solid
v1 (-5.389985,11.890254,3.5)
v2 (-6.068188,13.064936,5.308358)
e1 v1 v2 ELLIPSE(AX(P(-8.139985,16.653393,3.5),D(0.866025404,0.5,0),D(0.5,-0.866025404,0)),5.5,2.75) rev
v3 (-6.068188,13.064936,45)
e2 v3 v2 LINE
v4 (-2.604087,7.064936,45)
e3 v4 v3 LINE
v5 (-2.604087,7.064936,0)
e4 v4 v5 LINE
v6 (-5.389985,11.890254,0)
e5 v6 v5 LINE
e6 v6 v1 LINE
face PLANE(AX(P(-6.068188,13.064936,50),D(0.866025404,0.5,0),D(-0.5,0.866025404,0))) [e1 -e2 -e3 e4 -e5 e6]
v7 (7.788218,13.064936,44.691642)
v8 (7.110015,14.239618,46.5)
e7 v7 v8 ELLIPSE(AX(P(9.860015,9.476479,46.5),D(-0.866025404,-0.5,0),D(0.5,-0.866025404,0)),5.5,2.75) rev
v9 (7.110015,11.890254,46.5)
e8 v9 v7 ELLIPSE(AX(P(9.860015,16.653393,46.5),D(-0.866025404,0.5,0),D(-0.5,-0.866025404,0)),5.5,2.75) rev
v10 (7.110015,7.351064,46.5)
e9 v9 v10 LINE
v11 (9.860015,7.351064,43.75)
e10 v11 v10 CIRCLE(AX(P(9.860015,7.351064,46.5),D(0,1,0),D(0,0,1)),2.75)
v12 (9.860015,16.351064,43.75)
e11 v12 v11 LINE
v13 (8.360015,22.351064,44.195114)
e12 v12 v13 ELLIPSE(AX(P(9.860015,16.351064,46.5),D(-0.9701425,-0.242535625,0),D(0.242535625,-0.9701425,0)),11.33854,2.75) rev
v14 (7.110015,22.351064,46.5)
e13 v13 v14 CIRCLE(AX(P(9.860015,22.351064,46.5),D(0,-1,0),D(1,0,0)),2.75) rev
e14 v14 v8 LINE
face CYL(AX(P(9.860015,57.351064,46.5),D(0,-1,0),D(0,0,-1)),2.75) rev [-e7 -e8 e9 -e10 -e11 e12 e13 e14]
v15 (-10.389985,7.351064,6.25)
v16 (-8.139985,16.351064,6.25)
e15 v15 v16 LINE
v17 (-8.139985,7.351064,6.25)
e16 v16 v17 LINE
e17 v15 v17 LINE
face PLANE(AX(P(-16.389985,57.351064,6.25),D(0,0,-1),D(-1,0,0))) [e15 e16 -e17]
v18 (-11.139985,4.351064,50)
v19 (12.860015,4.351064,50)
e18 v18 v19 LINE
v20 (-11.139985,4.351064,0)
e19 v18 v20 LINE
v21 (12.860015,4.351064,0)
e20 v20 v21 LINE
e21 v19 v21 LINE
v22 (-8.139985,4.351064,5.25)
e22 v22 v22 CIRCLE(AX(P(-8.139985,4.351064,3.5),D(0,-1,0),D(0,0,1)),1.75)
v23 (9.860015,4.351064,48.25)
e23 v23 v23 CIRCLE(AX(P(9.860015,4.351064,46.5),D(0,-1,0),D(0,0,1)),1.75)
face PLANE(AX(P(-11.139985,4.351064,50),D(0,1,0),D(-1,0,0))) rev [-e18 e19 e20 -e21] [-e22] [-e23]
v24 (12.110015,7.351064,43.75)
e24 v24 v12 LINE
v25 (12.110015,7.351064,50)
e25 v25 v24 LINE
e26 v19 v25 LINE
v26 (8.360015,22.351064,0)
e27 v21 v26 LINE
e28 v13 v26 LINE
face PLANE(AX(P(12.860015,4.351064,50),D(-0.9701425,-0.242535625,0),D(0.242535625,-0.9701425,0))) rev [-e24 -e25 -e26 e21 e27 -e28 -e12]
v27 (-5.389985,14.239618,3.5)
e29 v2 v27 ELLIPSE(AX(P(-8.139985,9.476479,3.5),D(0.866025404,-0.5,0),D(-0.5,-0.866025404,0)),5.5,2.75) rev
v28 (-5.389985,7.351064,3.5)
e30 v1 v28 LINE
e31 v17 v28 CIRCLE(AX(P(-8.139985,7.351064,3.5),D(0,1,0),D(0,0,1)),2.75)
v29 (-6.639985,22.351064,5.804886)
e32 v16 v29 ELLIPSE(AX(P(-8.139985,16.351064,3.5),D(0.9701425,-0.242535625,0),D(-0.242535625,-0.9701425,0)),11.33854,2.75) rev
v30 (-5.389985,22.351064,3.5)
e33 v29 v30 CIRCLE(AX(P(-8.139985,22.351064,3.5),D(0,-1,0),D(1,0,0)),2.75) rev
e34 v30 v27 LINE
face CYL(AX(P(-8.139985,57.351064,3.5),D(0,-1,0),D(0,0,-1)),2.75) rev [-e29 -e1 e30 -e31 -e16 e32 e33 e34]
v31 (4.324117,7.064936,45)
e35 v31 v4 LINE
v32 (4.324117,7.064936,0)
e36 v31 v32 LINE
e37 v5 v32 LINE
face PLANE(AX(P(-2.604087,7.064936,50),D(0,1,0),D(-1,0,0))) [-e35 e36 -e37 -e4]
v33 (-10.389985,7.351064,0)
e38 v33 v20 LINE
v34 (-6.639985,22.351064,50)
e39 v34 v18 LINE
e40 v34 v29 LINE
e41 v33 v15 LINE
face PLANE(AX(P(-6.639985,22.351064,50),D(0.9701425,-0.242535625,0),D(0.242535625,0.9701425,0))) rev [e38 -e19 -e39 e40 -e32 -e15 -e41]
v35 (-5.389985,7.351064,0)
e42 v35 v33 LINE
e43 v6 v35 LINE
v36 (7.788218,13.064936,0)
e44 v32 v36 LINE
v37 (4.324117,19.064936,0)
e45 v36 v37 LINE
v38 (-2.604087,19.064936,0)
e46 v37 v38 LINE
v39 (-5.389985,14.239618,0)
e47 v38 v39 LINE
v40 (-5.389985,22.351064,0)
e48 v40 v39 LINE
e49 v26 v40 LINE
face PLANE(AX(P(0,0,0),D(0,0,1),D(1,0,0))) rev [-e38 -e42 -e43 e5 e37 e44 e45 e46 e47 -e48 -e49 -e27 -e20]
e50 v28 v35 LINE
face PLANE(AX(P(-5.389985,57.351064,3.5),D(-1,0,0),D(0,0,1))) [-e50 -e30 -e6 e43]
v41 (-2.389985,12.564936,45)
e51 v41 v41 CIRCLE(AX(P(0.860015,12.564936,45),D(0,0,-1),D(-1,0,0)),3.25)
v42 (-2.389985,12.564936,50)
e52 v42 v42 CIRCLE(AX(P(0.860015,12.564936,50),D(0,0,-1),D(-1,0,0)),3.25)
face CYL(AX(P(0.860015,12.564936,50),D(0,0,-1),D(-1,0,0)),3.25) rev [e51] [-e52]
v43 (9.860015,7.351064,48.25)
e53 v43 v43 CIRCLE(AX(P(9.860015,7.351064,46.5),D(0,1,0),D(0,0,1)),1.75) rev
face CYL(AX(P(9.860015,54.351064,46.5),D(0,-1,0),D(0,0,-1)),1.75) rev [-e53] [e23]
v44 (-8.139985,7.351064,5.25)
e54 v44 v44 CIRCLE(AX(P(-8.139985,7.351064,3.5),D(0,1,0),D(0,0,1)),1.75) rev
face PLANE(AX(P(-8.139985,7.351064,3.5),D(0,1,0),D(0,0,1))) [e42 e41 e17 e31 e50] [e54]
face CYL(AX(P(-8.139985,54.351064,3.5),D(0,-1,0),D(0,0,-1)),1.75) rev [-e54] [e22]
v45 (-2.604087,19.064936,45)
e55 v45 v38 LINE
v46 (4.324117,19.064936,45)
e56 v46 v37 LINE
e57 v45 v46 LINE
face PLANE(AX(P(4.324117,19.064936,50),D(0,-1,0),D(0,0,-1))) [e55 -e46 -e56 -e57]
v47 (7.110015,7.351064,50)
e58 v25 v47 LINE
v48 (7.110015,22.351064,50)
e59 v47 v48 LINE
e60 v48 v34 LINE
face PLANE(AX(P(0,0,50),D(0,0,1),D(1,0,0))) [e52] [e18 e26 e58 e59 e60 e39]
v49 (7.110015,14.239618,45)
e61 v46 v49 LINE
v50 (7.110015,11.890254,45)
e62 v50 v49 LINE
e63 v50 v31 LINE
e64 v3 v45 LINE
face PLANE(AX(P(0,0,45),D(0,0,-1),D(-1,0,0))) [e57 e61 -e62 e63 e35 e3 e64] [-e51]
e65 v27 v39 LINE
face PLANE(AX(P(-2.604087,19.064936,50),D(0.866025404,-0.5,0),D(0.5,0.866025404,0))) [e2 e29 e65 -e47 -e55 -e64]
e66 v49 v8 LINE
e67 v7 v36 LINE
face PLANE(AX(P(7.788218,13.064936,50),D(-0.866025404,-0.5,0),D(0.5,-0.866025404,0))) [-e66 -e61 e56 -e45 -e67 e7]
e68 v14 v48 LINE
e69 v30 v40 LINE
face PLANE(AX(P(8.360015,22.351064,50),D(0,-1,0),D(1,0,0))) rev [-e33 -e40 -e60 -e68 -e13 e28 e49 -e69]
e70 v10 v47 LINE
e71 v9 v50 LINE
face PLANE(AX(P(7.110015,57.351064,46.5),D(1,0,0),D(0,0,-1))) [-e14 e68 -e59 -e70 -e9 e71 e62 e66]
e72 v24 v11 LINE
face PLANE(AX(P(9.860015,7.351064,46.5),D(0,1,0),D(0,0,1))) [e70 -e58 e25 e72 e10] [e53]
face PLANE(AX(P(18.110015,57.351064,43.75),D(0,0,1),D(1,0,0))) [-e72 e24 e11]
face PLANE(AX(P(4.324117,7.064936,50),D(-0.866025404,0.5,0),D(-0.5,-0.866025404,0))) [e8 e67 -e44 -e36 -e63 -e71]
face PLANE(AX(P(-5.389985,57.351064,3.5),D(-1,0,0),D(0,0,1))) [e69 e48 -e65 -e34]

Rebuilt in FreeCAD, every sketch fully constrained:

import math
import FreeCAD as App
import Part
import Sketcher
from FreeCAD import Vector
Q = App.Units.Quantity


def add_polygon(sketch, points):
    """Adds a closed chain of lines whose ends are joined by coincident constraints."""
    first, n = sketch.GeometryCount, len(points)
    for a, b in zip(points, points[1:] + points[:1]):
        sketch.addGeometry(Part.LineSegment(App.Vector(*a, 0), App.Vector(*b, 0)), False)
    for i in range(n):
        sketch.addConstraint(Sketcher.Constraint("Coincident", first + i, 2, first + (i + 1) % n, 1))

doc = App.newDocument("Part")
body = doc.addObject("PartDesign::Body", "Body")

# Sketch on XY plane
sketch1 = body.newObject("Sketcher::SketchObject", "Sketch")
sketch1.AttachmentSupport = (doc.getObject("XY_Plane"), [""])
sketch1.MapMode = "FlatFace"
add_polygon(sketch1, [(-11, 4), (13, 4), (8, 22), (-7, 22)])  # lines 0-3
add_polygon(sketch1, [(-3, 7), (-6, 13), (-3, 19), (4, 19), (8, 13), (4, 7)])  # lines 4-9
sketch1.addConstraint([
    Sketcher.Constraint("Horizontal", 0),
    Sketcher.Constraint("Horizontal", 2),
    Sketcher.Constraint("Horizontal", 6),
    Sketcher.Constraint("Horizontal", 9),
    Sketcher.Constraint("Parallel", 4, 7),
    Sketcher.Constraint("Parallel", 5, 8),
    Sketcher.Constraint("Horizontal", 4, 2, 7, 2),
    Sketcher.Constraint("Vertical", 6, 2, 8, 2),
    Sketcher.Constraint("Vertical", 5, 2, 9, 2),
    Sketcher.Constraint("Equal", 1, 3),
    Sketcher.Constraint("DistanceX", 0, 1, 0, 2, Q("24 mm")),
    Sketcher.Constraint("DistanceX", 2, 2, 2, 1, Q("15 mm")),
    Sketcher.Constraint("Angle", 4, Q("120 deg")),
    Sketcher.Constraint("DistanceY", 0, 2, 1, 2, Q("18 mm")),
    Sketcher.Constraint("DistanceY", 4, 2, 5, 2, Q("6 mm")),
    Sketcher.Constraint("DistanceX", 2, 2, 5, 2, Q("4.035898 mm")),
    Sketcher.Constraint("DistanceX", 6, 2, 1, 2, Q("4.035898 mm")),
    Sketcher.Constraint("DistanceX", 4, 2, -1, 1, Q("6.068188 mm")),
    Sketcher.Constraint("DistanceY", -1, 1, 0, 2, Q("4.351064 mm")),
    Sketcher.Constraint("DistanceY", -1, 1, 4, 2, Q("13.064936 mm")),
])
pad1 = body.newObject("PartDesign::Pad", "Pad")
pad1.Profile = sketch1
pad1.Length = 50

# Sketch on XZ plane
sketch2 = body.newObject("Sketcher::SketchObject", "Sketch001")
sketch2.AttachmentSupport = (doc.getObject("XZ_Plane"), [""])
sketch2.MapMode = "FlatFace"
sketch2.AttachmentOffset = App.Placement(Vector(0, 0, -4.351064), App.Rotation())
sketch2.addGeometry([
    Part.Circle(Vector(-8.1, 3.5, 0), Vector(0, 0, 1), 1.8),
    Part.Circle(Vector(9.9, 46.5, 0), Vector(0, 0, 1), 1.8),
], False)
sketch2.addConstraint([
    Sketcher.Constraint("Equal", 0, 1),
    Sketcher.Constraint("Diameter", 0, Q("3.5 mm")),
    Sketcher.Constraint("DistanceX", 0, 3, 1, 3, Q("18 mm")),
    Sketcher.Constraint("DistanceY", 0, 3, 1, 3, Q("43 mm")),
    Sketcher.Constraint("DistanceY", -1, 1, 0, 3, Q("3.5 mm")),
    Sketcher.Constraint("DistanceX", 0, 3, -1, 1, Q("8.139985 mm")),
])
pocket1 = body.newObject("PartDesign::Pocket", "Pocket")
pocket1.Profile = sketch2
pocket1.Length = 50

# Sketch on XZ plane
sketch3 = body.newObject("Sketcher::SketchObject", "Sketch002")
sketch3.AttachmentSupport = (doc.getObject("XZ_Plane"), [""])
sketch3.MapMode = "FlatFace"
sketch3.AttachmentOffset = App.Placement(Vector(0, 0, -7.351064), App.Rotation())
sketch3.addGeometry([
    Part.LineSegment(Vector(9.9, 43.8, 0), Vector(18.1, 43.8, 0)),  # 0
    Part.LineSegment(Vector(18.1, 43.8, 0), Vector(18.1, 54.8, 0)),  # 1
    Part.LineSegment(Vector(18.1, 54.8, 0), Vector(7.1, 54.8, 0)),  # 2
    Part.LineSegment(Vector(7.1, 54.8, 0), Vector(7.1, 46.5, 0)),  # 3
    Part.ArcOfCircle(Part.Circle(Vector(9.9, 46.5, 0), Vector(0, 0, 1), 2.8), math.radians(-180), math.radians(-90)),  # 4
    Part.LineSegment(Vector(-8.1, 6.2, 0), Vector(-16.4, 6.2, 0)),  # 5
    Part.LineSegment(Vector(-16.4, 6.2, 0), Vector(-16.4, -4.8, 0)),  # 6
    Part.LineSegment(Vector(-16.4, -4.8, 0), Vector(-5.4, -4.8, 0)),  # 7
    Part.LineSegment(Vector(-5.4, -4.8, 0), Vector(-5.4, 3.5, 0)),  # 8
    Part.ArcOfCircle(Part.Circle(Vector(-8.1, 3.5, 0), Vector(0, 0, 1), 2.7), math.radians(0), math.radians(90)),  # 9
], False)
sketch3.addConstraint([
    Sketcher.Constraint("Coincident", 0, 2, 1, 1),
    Sketcher.Constraint("Coincident", 1, 2, 2, 1),
    Sketcher.Constraint("Coincident", 2, 2, 3, 1),
    Sketcher.Constraint("Tangent", 3, 2, 4, 1),
    Sketcher.Constraint("Tangent", 4, 2, 0, 1),
    Sketcher.Constraint("Coincident", 5, 2, 6, 1),
    Sketcher.Constraint("Coincident", 6, 2, 7, 1),
    Sketcher.Constraint("Coincident", 7, 2, 8, 1),
    Sketcher.Constraint("Tangent", 8, 2, 9, 1),
    Sketcher.Constraint("Tangent", 9, 2, 5, 1),
    Sketcher.Constraint("Horizontal", 0),
    Sketcher.Constraint("Vertical", 1),
    Sketcher.Constraint("Horizontal", 2),
    Sketcher.Constraint("Vertical", 3),
    Sketcher.Constraint("Horizontal", 5),
    Sketcher.Constraint("Vertical", 6),
    Sketcher.Constraint("Horizontal", 7),
    Sketcher.Constraint("Vertical", 8),
    Sketcher.Constraint("Equal", 4, 9),
    Sketcher.Constraint("Equal", 0, 5),
    Sketcher.Constraint("Equal", 7, 1),
    Sketcher.Constraint("Equal", 1, 6),
    Sketcher.Constraint("DistanceX", 2, 2, 2, 1, Q("11 mm")),
    Sketcher.Constraint("Radius", 4, Q("2.75 mm")),
    Sketcher.Constraint("DistanceX", 9, 3, 4, 3, Q("18 mm")),
    Sketcher.Constraint("DistanceY", 9, 3, 4, 3, Q("43 mm")),
    Sketcher.Constraint("DistanceY", -1, 1, 4, 3, Q("46.5 mm")),
    Sketcher.Constraint("DistanceX", -1, 1, 4, 3, Q("9.860015 mm")),
])
pocket2 = body.newObject("PartDesign::Pocket", "Pocket001")
pocket2.Profile = sketch3
pocket2.Length = 50

# Sketch on XY plane
sketch4 = body.newObject("Sketcher::SketchObject", "Sketch003")
sketch4.AttachmentSupport = (doc.getObject("XY_Plane"), [""])
sketch4.MapMode = "FlatFace"
sketch4.AttachmentOffset = App.Placement(Vector(0, 0, 50), App.Rotation())
add_polygon(sketch4, [(-7, 22), (-7, 7), (7, 7), (7, 22)])  # lines 0-3
sketch4.addConstraint([
    Sketcher.Constraint("Vertical", 0),
    Sketcher.Constraint("Horizontal", 1),
    Sketcher.Constraint("Vertical", 2),
    Sketcher.Constraint("Horizontal", 3),
    Sketcher.Constraint("DistanceX", 1, 1, 1, 2, Q("13.75 mm")),
    Sketcher.Constraint("DistanceY", 0, 2, 0, 1, Q("15.668519 mm")),
    Sketcher.Constraint("DistanceX", 0, 2, -1, 1, Q("6.639985 mm")),
    Sketcher.Constraint("DistanceY", -1, 1, 0, 2, Q("6.682545 mm")),
])
pad2 = body.newObject("PartDesign::Pad", "Pad001")
pad2.Profile = sketch4
pad2.Length = 5
pad2.Reversed = True

# Sketch on XY plane
sketch5 = body.newObject("Sketcher::SketchObject", "Sketch004")
sketch5.AttachmentSupport = (doc.getObject("XY_Plane"), [""])
sketch5.MapMode = "FlatFace"
sketch5.addGeometry(Part.Circle(Vector(0.9, 12.6, 0), Vector(0, 0, 1), 3.2), False)
sketch5.addConstraint([
    Sketcher.Constraint("Diameter", 0, Q("6.5 mm")),
    Sketcher.Constraint("DistanceX", -1, 1, 0, 3, Q("0.860015 mm")),
    Sketcher.Constraint("DistanceY", -1, 1, 0, 3, Q("12.564936 mm")),
])
pocket3 = body.newObject("PartDesign::Pocket", "Pocket002")
pocket3.Profile = sketch5
pocket3.Type = "ThroughAll"
pocket3.Reversed = True

doc.recompute()
